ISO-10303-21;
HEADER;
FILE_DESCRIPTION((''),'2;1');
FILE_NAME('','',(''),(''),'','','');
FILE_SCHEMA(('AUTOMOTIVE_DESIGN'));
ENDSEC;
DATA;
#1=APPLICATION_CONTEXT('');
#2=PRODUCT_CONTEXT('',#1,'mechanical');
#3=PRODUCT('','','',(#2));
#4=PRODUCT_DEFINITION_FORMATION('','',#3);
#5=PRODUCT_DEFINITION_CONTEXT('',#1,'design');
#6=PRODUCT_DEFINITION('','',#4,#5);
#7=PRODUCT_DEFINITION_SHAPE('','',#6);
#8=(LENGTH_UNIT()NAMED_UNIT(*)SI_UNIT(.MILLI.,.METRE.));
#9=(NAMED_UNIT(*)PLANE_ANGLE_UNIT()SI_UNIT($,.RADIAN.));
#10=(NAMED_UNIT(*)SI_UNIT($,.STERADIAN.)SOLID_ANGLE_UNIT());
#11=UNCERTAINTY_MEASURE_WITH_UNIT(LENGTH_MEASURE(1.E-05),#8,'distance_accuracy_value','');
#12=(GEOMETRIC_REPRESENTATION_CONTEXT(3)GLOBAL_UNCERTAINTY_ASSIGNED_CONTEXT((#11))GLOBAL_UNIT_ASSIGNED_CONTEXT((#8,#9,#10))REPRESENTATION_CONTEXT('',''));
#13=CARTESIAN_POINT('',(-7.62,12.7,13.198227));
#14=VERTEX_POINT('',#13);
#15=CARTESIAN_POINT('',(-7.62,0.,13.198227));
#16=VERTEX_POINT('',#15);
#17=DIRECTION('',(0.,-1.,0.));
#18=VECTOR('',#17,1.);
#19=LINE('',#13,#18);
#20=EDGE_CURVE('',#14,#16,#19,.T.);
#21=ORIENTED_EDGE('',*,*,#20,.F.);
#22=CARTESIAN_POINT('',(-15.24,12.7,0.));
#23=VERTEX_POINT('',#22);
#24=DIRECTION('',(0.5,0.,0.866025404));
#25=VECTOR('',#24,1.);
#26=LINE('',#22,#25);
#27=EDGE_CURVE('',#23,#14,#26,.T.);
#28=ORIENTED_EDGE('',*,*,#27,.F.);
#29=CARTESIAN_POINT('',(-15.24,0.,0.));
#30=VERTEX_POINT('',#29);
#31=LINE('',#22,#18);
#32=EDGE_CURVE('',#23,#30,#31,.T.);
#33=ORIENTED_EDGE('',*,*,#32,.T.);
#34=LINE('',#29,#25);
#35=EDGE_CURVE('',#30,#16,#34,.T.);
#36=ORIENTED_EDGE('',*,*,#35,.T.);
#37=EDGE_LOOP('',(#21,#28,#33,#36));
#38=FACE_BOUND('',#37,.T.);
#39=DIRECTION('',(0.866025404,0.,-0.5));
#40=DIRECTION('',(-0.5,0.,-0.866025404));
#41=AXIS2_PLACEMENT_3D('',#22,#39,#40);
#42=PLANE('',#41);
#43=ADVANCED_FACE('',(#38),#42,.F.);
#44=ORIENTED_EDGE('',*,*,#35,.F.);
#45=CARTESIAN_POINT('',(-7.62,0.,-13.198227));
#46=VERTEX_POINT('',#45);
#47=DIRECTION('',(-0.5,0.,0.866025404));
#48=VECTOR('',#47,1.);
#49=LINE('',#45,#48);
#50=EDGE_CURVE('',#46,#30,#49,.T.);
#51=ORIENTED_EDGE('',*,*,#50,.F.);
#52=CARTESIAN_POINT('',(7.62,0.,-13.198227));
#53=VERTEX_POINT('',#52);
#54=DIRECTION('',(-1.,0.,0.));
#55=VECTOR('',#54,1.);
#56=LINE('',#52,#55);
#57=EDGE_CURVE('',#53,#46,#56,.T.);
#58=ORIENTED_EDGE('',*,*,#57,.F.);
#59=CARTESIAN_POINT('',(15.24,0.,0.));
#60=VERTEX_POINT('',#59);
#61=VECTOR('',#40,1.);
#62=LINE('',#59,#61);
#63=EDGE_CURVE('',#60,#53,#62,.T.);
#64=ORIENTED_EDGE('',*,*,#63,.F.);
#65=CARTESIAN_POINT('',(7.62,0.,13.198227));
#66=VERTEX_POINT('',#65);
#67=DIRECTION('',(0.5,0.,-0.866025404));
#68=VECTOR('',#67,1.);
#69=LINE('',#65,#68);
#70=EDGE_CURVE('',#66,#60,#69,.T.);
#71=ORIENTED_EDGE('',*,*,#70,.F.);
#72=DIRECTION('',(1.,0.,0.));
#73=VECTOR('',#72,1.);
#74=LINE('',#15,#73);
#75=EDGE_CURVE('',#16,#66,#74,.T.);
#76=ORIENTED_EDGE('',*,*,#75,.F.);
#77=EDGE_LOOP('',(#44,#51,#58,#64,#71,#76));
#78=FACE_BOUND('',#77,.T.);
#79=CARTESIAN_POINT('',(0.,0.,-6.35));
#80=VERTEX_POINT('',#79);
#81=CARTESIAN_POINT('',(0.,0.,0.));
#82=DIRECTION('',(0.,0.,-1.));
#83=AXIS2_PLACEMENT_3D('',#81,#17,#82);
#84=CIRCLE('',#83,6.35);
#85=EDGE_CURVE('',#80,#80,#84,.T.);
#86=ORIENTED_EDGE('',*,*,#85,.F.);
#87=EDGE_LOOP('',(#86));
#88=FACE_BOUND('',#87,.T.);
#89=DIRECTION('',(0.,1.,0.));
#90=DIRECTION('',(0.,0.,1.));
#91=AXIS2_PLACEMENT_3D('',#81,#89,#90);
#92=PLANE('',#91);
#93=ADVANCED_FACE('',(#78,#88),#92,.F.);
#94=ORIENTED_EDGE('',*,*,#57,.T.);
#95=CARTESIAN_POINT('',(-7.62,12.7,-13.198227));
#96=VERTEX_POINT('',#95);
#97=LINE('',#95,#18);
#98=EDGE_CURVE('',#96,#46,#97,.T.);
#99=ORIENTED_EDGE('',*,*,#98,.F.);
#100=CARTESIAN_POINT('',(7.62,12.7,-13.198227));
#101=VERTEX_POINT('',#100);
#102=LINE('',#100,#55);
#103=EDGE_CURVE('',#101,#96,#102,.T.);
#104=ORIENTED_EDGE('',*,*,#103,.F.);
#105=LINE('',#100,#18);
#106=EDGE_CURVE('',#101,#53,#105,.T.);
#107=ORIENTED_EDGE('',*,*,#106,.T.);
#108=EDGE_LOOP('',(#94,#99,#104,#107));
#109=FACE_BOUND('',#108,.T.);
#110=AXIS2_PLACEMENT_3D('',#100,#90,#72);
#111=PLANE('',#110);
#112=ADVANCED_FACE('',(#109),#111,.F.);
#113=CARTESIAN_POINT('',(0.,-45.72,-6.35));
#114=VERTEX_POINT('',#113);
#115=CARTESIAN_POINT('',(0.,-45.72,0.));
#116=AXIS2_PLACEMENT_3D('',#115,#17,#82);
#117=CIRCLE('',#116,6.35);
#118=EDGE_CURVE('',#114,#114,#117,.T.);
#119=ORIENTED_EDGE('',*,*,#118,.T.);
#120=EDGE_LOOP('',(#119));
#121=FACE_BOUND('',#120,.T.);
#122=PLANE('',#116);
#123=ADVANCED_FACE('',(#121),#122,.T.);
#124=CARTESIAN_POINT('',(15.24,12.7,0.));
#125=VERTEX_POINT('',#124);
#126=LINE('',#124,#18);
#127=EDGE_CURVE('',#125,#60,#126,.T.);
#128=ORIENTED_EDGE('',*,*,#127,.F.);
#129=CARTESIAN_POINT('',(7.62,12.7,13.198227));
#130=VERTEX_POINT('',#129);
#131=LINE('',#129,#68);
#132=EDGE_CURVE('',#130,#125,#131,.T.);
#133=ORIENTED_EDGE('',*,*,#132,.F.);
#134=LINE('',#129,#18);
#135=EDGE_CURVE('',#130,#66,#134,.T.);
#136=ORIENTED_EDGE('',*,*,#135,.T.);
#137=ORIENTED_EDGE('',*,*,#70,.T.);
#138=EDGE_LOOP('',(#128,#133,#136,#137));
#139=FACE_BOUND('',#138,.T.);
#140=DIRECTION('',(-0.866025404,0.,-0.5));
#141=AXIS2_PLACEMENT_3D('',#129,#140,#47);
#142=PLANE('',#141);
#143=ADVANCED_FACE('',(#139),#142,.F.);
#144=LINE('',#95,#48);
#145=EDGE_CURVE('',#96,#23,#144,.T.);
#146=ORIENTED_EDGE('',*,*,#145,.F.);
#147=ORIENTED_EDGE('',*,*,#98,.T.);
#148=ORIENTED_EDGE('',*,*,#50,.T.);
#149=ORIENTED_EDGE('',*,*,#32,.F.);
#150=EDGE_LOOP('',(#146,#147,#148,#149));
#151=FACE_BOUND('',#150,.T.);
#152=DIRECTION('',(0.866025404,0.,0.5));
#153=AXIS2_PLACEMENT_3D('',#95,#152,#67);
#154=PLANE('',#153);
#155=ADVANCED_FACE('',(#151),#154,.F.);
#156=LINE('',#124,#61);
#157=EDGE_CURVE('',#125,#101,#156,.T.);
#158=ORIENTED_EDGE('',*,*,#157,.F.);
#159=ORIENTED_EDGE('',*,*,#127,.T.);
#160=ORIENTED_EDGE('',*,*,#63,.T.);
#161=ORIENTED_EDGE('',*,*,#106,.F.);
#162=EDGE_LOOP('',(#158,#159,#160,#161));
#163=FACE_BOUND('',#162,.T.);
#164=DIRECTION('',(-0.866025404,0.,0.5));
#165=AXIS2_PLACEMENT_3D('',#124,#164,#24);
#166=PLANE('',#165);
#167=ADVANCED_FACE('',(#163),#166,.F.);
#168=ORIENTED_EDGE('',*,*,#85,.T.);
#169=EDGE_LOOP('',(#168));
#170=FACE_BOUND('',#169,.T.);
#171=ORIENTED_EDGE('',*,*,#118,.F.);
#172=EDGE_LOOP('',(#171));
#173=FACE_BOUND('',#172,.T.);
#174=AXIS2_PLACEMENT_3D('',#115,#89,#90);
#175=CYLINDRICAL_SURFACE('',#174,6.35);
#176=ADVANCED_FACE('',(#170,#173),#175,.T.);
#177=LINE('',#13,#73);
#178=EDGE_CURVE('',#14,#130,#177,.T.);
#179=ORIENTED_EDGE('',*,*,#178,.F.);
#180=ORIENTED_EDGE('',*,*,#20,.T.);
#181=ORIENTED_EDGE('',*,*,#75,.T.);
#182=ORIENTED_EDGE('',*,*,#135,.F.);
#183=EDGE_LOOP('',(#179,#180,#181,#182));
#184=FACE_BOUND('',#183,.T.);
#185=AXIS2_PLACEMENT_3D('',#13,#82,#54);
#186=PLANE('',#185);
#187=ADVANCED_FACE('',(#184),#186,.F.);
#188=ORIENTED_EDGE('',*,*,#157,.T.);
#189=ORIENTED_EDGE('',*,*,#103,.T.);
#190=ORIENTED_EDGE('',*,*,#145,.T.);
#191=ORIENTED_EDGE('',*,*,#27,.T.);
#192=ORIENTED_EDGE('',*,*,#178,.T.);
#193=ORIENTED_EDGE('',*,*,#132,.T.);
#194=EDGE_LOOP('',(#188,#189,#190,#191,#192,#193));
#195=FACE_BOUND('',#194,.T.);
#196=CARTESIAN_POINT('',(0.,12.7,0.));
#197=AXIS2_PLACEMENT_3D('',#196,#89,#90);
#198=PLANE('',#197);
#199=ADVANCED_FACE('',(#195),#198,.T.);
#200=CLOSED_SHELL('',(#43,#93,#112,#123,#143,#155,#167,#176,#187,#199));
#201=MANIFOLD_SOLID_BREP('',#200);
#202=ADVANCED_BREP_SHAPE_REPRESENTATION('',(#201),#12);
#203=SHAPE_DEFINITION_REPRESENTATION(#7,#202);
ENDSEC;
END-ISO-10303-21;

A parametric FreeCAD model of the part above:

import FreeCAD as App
import Part
import Sketcher
Q = App.Units.Quantity

doc = App.newDocument("Part")
body = doc.addObject("PartDesign::Body", "Body")

# Sketch on XZ plane
sketch1 = doc.addObject("Sketcher::SketchObject", "Sketch")
body.addObject(sketch1)
sketch1.AttachmentSupport = (doc.XZ_Plane, [""])
sketch1.MapMode = "FlatFace"
sketch1.addGeometry(Part.LineSegment(App.Vector(15, 0, 0), App.Vector(8, -13, 0)), False)
sketch1.addGeometry(Part.LineSegment(App.Vector(8, -13, 0), App.Vector(-8, -13, 0)), False)
sketch1.addGeometry(Part.LineSegment(App.Vector(-8, -13, 0), App.Vector(-15, 0, 0)), False)
sketch1.addGeometry(Part.LineSegment(App.Vector(-15, 0, 0), App.Vector(-8, 13, 0)), False)
sketch1.addGeometry(Part.LineSegment(App.Vector(-8, 13, 0), App.Vector(8, 13, 0)), False)
sketch1.addGeometry(Part.LineSegment(App.Vector(8, 13, 0), App.Vector(15, 0, 0)), False)
sketch1.addConstraint(Sketcher.Constraint("Coincident", 0, 2, 1, 1))
sketch1.addConstraint(Sketcher.Constraint("Coincident", 1, 2, 2, 1))
sketch1.addConstraint(Sketcher.Constraint("Coincident", 2, 2, 3, 1))
sketch1.addConstraint(Sketcher.Constraint("Coincident", 3, 2, 4, 1))
sketch1.addConstraint(Sketcher.Constraint("Coincident", 4, 2, 5, 1))
sketch1.addConstraint(Sketcher.Constraint("Coincident", 5, 2, 0, 1))
sketch1.addConstraint(Sketcher.Constraint("Horizontal", 1))
sketch1.addConstraint(Sketcher.Constraint("Horizontal", 4))
sketch1.addConstraint(Sketcher.Constraint("Symmetric", 0, 2, 3, 2, -1, 1))
sketch1.addConstraint(Sketcher.Constraint("Symmetric", 2, 2, 5, 2, -1, 1))
sketch1.addConstraint(Sketcher.Constraint("PointOnObject", 2, 2, -1))
sketch1.addConstraint(Sketcher.Constraint("Parallel", 2, 5))
sketch1.addConstraint(Sketcher.Constraint("Vertical", 1, 2, 3, 2))
sketch1.addConstraint(Sketcher.Constraint("DistanceX", 1, 2, 1, 1, Q("0.6 in")))
sketch1.addConstraint(Sketcher.Constraint("Angle", 0, Q("-120 deg")))
sketch1.addConstraint(Sketcher.Constraint("Distance", 0, Q("0.6 in")))
pad1 = doc.addObject("PartDesign::Pad", "Pad")
body.addObject(pad1)
pad1.Profile = sketch1
pad1.Length = Q("0.5 in")
pad1.Reversed = True

# Sketch on XZ plane
sketch2 = doc.addObject("Sketcher::SketchObject", "Sketch001")
body.addObject(sketch2)
sketch2.AttachmentSupport = (doc.XZ_Plane, [""])
sketch2.MapMode = "FlatFace"
sketch2.addGeometry(Part.Circle(App.Vector(0, 0, 0), App.Vector(0, 0, 1), 6), False)
sketch2.addConstraint(Sketcher.Constraint("Coincident", 0, 3, -1, 1))
sketch2.addConstraint(Sketcher.Constraint("Diameter", 0, Q("0.5 in")))
pad2 = doc.addObject("PartDesign::Pad", "Pad001")
body.addObject(pad2)
pad2.Profile = sketch2
pad2.Length = Q("1.8 in")

doc.recompute()
